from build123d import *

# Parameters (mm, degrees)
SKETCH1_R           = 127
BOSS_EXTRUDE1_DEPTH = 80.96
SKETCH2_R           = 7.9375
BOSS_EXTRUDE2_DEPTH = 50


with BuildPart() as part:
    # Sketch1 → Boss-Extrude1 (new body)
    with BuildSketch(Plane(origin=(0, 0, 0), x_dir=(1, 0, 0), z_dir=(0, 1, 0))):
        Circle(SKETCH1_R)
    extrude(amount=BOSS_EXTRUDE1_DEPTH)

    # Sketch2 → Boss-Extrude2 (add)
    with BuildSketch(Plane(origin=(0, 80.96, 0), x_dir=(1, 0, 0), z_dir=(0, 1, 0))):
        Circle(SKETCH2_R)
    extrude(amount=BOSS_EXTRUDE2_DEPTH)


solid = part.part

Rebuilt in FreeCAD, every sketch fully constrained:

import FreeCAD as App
import Part
import Sketcher
Q = App.Units.Quantity

doc = App.newDocument("Part")
params = doc.addObject("Spreadsheet::Sheet", "Params")
for row, (alias, value) in enumerate([
    ("sketch1_diameter", "10 in"),
    ("pad1_length", "80.96 mm"),
    ("sketch2_diameter", "0.625 in"),
    ("pad2_length", "50 mm"),
], start=1):
    params.set(f"A{row}", alias)
    params.set(f"B{row}", "=" + value)
    params.setAlias(f"B{row}", alias)

body = doc.addObject("PartDesign::Body", "Body")

# Sketch on XZ plane
sketch1 = body.newObject("Sketcher::SketchObject", "Sketch")
sketch1.AttachmentSupport = (doc.getObject("XZ_Plane"), [""])
sketch1.MapMode = "FlatFace"
sketch1.addGeometry(Part.Circle(App.Vector(0, 0, 0), App.Vector(0, 0, 1), 127), False)
sketch1.addConstraint([
    Sketcher.Constraint("Coincident", 0, 3, -1, 1),
    Sketcher.Constraint("Diameter", 0, Q("10 in")),
])
sketch1.setExpression("Constraints[1]", "Params.sketch1_diameter")
pad1 = body.newObject("PartDesign::Pad", "Pad")
pad1.Profile = sketch1
pad1.setExpression("Length", "Params.pad1_length")
pad1.Reversed = True

# Sketch on XZ plane
sketch2 = body.newObject("Sketcher::SketchObject", "Sketch001")
sketch2.AttachmentSupport = (doc.getObject("XZ_Plane"), [""])
sketch2.MapMode = "FlatFace"
sketch2.AttachmentOffset = App.Placement(App.Vector(0, 0, -80.96), App.Rotation())
sketch2.addGeometry(Part.Circle(App.Vector(0, 0, 0), App.Vector(0, 0, 1), 8), False)
sketch2.addConstraint([
    Sketcher.Constraint("Coincident", 0, 3, -1, 1),
    Sketcher.Constraint("Diameter", 0, Q("0.625 in")),
])
sketch2.setExpression("Constraints[1]", "Params.sketch2_diameter")
pad2 = body.newObject("PartDesign::Pad", "Pad001")
pad2.Profile = sketch2
pad2.setExpression("Length", "Params.pad2_length")
pad2.Reversed = True

doc.recompute()
